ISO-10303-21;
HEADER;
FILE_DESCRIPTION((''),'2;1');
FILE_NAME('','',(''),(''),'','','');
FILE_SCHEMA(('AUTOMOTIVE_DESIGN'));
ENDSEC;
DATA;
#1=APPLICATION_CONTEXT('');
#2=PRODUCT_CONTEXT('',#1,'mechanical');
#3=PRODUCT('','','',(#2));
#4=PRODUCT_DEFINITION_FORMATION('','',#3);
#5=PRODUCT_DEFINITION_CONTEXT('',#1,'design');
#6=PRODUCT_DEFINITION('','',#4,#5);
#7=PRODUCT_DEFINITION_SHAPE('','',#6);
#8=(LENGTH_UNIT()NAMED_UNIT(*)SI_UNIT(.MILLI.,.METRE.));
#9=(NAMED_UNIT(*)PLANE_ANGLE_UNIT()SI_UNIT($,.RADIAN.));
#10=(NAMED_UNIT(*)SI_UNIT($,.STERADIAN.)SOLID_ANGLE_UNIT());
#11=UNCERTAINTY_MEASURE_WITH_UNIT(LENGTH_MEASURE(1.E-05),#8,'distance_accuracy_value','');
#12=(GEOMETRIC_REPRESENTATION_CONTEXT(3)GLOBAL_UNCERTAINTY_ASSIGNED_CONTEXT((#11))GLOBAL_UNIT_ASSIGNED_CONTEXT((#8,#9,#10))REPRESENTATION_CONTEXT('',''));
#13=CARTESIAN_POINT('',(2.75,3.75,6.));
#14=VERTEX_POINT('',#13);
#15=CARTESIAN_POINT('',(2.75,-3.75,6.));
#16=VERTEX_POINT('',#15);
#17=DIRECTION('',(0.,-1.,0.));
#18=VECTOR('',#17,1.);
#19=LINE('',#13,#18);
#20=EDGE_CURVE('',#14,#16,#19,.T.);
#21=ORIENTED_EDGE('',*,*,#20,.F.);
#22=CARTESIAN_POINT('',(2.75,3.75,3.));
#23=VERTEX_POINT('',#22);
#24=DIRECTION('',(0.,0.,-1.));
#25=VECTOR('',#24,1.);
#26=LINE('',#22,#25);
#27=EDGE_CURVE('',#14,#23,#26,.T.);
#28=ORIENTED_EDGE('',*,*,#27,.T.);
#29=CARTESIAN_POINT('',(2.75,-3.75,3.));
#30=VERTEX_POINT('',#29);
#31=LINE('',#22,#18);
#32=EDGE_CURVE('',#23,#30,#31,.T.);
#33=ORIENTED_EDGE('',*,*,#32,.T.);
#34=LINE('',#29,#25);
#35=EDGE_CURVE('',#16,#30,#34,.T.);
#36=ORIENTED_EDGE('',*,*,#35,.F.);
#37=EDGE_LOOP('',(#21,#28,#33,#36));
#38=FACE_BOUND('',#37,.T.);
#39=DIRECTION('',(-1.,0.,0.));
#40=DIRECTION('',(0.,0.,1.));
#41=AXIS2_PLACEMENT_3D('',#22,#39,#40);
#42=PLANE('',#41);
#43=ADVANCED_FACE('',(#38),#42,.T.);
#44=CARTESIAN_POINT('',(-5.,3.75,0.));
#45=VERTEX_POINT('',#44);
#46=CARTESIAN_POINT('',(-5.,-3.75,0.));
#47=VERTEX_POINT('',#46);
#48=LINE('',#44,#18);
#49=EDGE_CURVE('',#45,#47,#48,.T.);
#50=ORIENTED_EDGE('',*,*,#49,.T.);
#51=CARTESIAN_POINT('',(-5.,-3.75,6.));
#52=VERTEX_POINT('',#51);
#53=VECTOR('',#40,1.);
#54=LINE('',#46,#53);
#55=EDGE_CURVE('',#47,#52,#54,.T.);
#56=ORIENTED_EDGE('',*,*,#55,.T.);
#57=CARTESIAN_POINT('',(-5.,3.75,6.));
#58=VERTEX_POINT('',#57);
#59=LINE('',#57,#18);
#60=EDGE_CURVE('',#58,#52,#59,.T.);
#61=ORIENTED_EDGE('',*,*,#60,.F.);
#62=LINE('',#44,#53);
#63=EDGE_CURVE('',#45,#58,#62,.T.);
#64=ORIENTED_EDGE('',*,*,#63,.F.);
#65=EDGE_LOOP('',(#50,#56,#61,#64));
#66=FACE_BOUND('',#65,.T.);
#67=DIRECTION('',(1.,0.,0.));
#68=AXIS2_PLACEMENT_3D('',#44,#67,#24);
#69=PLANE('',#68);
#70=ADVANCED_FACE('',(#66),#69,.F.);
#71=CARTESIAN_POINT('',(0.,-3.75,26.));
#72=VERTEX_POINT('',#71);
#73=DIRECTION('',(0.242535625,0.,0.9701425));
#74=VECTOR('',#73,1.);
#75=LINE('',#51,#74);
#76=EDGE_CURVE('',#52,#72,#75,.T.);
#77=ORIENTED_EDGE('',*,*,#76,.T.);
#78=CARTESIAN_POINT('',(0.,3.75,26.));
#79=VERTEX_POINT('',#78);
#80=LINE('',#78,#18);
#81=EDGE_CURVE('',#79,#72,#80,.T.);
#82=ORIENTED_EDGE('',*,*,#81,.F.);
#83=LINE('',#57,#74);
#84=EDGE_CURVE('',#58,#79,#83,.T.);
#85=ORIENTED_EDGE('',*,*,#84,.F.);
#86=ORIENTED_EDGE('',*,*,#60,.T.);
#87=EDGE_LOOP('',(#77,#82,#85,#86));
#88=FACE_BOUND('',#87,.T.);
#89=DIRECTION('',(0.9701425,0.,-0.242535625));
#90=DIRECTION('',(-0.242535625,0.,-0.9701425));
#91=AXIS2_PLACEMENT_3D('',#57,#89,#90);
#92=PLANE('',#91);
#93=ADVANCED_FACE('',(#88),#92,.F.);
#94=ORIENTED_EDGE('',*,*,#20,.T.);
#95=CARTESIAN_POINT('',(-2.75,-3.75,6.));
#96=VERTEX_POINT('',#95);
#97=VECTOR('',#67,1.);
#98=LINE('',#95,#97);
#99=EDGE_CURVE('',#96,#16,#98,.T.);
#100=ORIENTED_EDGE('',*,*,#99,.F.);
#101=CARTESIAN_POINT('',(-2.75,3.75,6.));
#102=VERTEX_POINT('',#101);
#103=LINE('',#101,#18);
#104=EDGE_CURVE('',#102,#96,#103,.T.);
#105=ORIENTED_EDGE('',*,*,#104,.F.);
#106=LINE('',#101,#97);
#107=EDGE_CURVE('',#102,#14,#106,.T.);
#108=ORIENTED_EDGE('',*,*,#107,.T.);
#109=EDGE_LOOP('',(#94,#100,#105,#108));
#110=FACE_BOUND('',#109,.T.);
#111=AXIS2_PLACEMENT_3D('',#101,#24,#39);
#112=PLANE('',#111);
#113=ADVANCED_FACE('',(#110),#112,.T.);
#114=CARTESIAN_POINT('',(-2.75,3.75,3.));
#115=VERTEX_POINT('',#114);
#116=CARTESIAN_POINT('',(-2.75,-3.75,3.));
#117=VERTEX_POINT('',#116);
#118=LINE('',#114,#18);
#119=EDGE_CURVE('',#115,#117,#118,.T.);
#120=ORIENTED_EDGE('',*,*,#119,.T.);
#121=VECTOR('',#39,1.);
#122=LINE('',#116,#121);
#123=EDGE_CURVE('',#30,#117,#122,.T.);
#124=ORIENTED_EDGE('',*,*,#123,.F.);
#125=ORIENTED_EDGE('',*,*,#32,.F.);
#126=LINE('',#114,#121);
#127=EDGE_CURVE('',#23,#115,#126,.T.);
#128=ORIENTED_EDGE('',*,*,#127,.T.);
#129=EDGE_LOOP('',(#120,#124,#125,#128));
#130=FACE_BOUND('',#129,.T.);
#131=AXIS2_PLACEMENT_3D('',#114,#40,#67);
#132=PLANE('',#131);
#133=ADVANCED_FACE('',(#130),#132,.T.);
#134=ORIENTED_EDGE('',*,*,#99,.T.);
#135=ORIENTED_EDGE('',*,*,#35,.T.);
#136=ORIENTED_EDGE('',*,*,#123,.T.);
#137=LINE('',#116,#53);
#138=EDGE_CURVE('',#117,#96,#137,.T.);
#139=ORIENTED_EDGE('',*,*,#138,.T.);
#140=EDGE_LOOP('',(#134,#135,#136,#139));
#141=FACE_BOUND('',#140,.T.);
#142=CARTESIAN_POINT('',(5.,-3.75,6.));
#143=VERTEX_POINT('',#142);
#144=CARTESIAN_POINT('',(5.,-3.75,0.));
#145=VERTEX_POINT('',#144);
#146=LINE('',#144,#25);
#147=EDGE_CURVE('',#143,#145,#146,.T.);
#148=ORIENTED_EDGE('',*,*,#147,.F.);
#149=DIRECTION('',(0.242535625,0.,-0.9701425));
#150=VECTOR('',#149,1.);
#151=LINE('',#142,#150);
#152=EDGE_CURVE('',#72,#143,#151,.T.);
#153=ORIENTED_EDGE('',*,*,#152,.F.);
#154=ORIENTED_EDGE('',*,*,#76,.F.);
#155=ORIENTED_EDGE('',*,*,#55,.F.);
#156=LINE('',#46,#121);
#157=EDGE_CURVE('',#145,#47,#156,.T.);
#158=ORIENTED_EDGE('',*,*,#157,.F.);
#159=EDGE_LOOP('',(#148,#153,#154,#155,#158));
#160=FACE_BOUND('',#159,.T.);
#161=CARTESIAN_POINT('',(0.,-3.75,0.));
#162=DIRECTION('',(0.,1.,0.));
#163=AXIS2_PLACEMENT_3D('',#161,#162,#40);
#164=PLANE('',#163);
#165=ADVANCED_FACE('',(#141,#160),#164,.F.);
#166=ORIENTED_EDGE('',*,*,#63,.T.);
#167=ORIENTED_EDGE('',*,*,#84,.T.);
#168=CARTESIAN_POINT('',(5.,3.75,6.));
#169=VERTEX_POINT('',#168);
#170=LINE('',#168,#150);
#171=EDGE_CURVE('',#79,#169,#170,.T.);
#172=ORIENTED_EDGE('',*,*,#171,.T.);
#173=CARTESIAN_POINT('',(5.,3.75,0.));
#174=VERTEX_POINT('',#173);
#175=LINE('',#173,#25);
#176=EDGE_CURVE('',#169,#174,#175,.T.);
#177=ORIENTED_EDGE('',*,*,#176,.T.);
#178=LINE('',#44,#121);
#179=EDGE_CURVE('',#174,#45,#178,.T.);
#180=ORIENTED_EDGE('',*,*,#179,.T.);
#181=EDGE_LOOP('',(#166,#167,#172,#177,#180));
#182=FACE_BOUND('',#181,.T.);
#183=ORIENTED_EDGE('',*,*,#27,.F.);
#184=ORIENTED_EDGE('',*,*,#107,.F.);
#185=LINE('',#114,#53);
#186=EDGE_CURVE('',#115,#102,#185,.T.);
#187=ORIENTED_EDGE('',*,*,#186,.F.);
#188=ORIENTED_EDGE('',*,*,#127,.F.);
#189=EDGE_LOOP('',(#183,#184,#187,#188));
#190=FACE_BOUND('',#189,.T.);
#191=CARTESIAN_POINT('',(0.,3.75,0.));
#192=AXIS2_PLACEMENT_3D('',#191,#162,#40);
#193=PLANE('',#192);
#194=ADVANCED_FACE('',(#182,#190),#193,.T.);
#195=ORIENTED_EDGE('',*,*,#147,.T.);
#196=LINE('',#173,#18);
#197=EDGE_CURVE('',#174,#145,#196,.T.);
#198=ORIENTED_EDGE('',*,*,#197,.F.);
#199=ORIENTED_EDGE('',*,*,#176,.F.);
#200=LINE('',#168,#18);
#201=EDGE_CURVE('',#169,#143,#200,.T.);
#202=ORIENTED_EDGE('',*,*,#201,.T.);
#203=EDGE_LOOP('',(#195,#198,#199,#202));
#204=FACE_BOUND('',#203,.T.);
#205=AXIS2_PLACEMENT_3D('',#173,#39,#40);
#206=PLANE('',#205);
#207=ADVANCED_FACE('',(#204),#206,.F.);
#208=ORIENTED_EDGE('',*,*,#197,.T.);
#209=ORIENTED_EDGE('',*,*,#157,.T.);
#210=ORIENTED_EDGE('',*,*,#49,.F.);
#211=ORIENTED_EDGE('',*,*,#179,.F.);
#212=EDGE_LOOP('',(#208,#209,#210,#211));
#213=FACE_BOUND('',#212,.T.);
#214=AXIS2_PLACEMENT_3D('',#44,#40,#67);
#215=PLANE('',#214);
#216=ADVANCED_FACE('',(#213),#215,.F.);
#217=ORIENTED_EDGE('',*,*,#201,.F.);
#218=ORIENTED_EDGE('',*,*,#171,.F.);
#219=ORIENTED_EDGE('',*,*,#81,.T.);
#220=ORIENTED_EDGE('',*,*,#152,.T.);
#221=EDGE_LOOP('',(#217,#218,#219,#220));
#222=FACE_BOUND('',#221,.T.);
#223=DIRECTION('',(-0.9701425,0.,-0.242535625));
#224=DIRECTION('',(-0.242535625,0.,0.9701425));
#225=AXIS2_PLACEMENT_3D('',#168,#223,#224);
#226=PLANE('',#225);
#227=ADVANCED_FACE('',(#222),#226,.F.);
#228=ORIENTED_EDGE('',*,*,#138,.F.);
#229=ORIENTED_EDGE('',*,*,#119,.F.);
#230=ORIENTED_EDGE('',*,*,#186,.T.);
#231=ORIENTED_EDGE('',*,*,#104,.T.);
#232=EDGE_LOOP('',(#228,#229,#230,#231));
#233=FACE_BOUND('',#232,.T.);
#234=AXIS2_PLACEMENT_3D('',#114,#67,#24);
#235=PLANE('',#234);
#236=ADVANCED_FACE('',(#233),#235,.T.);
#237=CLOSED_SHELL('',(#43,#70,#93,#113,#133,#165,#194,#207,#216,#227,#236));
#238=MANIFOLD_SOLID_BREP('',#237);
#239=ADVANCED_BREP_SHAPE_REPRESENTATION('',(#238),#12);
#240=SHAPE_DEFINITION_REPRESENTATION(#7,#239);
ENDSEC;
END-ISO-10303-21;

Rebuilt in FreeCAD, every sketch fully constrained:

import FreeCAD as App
import Part
import Sketcher

V = App.Vector


def add_polygon(sketch, points):
    """Adds a closed chain of lines whose ends are joined by coincident constraints."""
    first, n = sketch.GeometryCount, len(points)
    for a, b in zip(points, points[1:] + points[:1]):
        sketch.addGeometry(Part.LineSegment(App.Vector(*a, 0), App.Vector(*b, 0)), False)
    for i in range(n):
        sketch.addConstraint(Sketcher.Constraint("Coincident", first + i, 2, first + (i + 1) % n, 1))

doc = App.newDocument("Part")
params = doc.addObject("Spreadsheet::Sheet", "Params")
for row, (alias, value) in enumerate([
    ("sketch1_width", "10 mm"),
    ("sketch1_height", "6 mm"),
    ("sketch1_height2", "3 mm"),
    ("sketch1_width2", "5.5 mm"),
    ("pad1_length", "7.5 mm"),
], start=1):
    params.set(f"A{row}", alias)
    params.set(f"B{row}", "=" + value)
    params.setAlias(f"B{row}", alias)

body = doc.addObject("PartDesign::Body", "Body")

# Sketch on XZ plane
sketch1 = body.newObject("Sketcher::SketchObject", "Sketch")
sketch1.AttachmentSupport = (doc.getObject("XZ_Plane"), [""])
sketch1.MapMode = "FlatFace"
add_polygon(sketch1, [(-5, 6), (0, 26), (5, 6), (5, 0), (-5, 0)])  # lines 0-4
add_polygon(sketch1, [(2.8, 6), (-2.8, 6), (-2.8, 3), (2.8, 3)])  # lines 5-8
sketch1.addConstraint([
    Sketcher.Constraint("Vertical", 2),
    Sketcher.Constraint("Horizontal", 3),
    Sketcher.Constraint("Vertical", 4),
    Sketcher.Constraint("Horizontal", 5),
    Sketcher.Constraint("Vertical", 6),
    Sketcher.Constraint("Horizontal", 7),
    Sketcher.Constraint("Vertical", 8),
    Sketcher.Constraint("Symmetric", 2, 2, 3, 2, -1, 1),
    Sketcher.Constraint("PointOnObject", 0, 2, -2),
    Sketcher.Constraint("Horizontal", 1, 2, 4, 2),
    Sketcher.Constraint("Horizontal", 4, 2, 5, 2),
    Sketcher.Constraint("DistanceX", 3, 2, 3, 1, 10.0),
    Sketcher.Constraint("DistanceY", 2, 2, 2, 1, 6.0),
    Sketcher.Constraint("DistanceY", 6, 2, 6, 1, 3.0),
    Sketcher.Constraint("DistanceX", 5, 2, 5, 1, 5.5),
    Sketcher.Constraint("DistanceY", -1, 1, 0, 2, 26.0),
    Sketcher.Constraint("DistanceX", 5, 2, -1, 1, 2.75),
])
sketch1.setExpression("Constraints[20]", "Params.sketch1_width")
sketch1.setExpression("Constraints[21]", "Params.sketch1_height")
sketch1.setExpression("Constraints[22]", "Params.sketch1_height2")
sketch1.setExpression("Constraints[23]", "Params.sketch1_width2")
pad1 = body.newObject("PartDesign::Pad", "Pad")
pad1.Profile = sketch1
pad1.setExpression("Length", "Params.pad1_length")
pad1.Midplane = True

doc.recompute()
